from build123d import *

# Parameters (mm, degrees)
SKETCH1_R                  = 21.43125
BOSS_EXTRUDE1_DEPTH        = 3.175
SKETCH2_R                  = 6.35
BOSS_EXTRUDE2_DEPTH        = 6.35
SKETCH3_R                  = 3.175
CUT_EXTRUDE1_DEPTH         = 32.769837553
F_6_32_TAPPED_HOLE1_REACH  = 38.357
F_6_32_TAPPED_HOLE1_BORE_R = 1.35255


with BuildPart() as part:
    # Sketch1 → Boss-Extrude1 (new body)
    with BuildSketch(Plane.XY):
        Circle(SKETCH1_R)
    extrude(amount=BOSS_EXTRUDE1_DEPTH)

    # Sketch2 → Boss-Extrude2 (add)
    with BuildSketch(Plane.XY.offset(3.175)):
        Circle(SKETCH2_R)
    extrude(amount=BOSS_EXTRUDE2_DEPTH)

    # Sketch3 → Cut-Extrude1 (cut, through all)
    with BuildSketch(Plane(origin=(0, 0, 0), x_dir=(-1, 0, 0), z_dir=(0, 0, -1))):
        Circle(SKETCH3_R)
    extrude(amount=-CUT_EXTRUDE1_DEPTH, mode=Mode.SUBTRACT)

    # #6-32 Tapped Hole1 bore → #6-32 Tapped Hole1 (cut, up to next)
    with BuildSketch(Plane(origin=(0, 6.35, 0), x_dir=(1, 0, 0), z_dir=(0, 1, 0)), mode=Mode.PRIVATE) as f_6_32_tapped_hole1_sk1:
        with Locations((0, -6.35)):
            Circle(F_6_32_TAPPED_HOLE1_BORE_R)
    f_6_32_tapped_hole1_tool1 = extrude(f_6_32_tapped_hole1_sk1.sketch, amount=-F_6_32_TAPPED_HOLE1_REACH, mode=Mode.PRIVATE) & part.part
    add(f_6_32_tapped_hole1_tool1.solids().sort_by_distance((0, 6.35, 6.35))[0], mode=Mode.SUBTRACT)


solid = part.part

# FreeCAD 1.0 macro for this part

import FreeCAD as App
import Part
import Sketcher
from FreeCAD import Vector
Q = App.Units.Quantity

doc = App.newDocument("Part")
body = doc.addObject("PartDesign::Body", "Body")

# Sketch on XY plane
sketch1 = doc.addObject("Sketcher::SketchObject", "Sketch")
body.addObject(sketch1)
sketch1.AttachmentSupport = (doc.XY_Plane, [""])
sketch1.MapMode = "FlatFace"
sketch1.addGeometry(Part.Circle(Vector(0, 0, 0), Vector(0, 0, 1), 21.43125), False)
sketch1.addConstraint([
    Sketcher.Constraint("Coincident", 0, 3, -1, 1),
    Sketcher.Constraint("Diameter", 0, Q("1.6875 in")),
])
pad1 = doc.addObject("PartDesign::Pad", "Pad")
body.addObject(pad1)
pad1.Profile = sketch1
pad1.Length = Q("0.125 in")

# Sketch on XY plane
sketch2 = doc.addObject("Sketcher::SketchObject", "Sketch001")
body.addObject(sketch2)
sketch2.AttachmentSupport = (doc.XY_Plane, [""])
sketch2.MapMode = "FlatFace"
sketch2.AttachmentOffset = App.Placement(Vector(0, 0, 0.125 * 25.4), App.Rotation())
sketch2.addGeometry(Part.Circle(Vector(0, 0, 0), Vector(0, 0, 1), 6.35), False)
sketch2.addConstraint([
    Sketcher.Constraint("Coincident", 0, 3, -1, 1),
    Sketcher.Constraint("Diameter", 0, Q("0.5 in")),
])
pad2 = doc.addObject("PartDesign::Pad", "Pad001")
body.addObject(pad2)
pad2.Profile = sketch2
pad2.Length = Q("0.25 in")

# Sketch on XY plane
sketch3 = doc.addObject("Sketcher::SketchObject", "Sketch002")
body.addObject(sketch3)
sketch3.AttachmentSupport = (doc.XY_Plane, [""])
sketch3.MapMode = "FlatFace"
sketch3.addGeometry(Part.Circle(Vector(0, 0, 0), Vector(0, 0, 1), 3.175), False)
sketch3.addConstraint([
    Sketcher.Constraint("Coincident", 0, 3, -1, 1),
    Sketcher.Constraint("Diameter", 0, Q("0.25 in")),
])
pocket1 = doc.addObject("PartDesign::Pocket", "Pocket")
body.addObject(pocket1)
pocket1.Profile = sketch3
pocket1.Type = "ThroughAll"
pocket1.Reversed = True

# Sketch on XZ plane
sketch4 = doc.addObject("Sketcher::SketchObject", "Sketch003")
body.addObject(sketch4)
sketch4.AttachmentSupport = (doc.XZ_Plane, [""])
sketch4.MapMode = "FlatFace"
sketch4.AttachmentOffset = App.Placement(Vector(0, 0, -0.25 * 25.4), App.Rotation())
sketch4.addGeometry(Part.Circle(Vector(0, 6.35, 0), Vector(0, 0, 1), 1.35255), False)
sketch4.addConstraint([
    Sketcher.Constraint("PointOnObject", 0, 3, -2),
    Sketcher.Constraint("Diameter", 0, Q("0.1065 in")),
    Sketcher.Constraint("DistanceY", -1, 1, 0, 3, Q("0.25 in")),
])
pocket2 = doc.addObject("PartDesign::Pocket", "Pocket001")
body.addObject(pocket2)
pocket2.Profile = sketch4
pocket2.Type = "UpToFirst"
pocket2.Reversed = True

doc.recompute()
